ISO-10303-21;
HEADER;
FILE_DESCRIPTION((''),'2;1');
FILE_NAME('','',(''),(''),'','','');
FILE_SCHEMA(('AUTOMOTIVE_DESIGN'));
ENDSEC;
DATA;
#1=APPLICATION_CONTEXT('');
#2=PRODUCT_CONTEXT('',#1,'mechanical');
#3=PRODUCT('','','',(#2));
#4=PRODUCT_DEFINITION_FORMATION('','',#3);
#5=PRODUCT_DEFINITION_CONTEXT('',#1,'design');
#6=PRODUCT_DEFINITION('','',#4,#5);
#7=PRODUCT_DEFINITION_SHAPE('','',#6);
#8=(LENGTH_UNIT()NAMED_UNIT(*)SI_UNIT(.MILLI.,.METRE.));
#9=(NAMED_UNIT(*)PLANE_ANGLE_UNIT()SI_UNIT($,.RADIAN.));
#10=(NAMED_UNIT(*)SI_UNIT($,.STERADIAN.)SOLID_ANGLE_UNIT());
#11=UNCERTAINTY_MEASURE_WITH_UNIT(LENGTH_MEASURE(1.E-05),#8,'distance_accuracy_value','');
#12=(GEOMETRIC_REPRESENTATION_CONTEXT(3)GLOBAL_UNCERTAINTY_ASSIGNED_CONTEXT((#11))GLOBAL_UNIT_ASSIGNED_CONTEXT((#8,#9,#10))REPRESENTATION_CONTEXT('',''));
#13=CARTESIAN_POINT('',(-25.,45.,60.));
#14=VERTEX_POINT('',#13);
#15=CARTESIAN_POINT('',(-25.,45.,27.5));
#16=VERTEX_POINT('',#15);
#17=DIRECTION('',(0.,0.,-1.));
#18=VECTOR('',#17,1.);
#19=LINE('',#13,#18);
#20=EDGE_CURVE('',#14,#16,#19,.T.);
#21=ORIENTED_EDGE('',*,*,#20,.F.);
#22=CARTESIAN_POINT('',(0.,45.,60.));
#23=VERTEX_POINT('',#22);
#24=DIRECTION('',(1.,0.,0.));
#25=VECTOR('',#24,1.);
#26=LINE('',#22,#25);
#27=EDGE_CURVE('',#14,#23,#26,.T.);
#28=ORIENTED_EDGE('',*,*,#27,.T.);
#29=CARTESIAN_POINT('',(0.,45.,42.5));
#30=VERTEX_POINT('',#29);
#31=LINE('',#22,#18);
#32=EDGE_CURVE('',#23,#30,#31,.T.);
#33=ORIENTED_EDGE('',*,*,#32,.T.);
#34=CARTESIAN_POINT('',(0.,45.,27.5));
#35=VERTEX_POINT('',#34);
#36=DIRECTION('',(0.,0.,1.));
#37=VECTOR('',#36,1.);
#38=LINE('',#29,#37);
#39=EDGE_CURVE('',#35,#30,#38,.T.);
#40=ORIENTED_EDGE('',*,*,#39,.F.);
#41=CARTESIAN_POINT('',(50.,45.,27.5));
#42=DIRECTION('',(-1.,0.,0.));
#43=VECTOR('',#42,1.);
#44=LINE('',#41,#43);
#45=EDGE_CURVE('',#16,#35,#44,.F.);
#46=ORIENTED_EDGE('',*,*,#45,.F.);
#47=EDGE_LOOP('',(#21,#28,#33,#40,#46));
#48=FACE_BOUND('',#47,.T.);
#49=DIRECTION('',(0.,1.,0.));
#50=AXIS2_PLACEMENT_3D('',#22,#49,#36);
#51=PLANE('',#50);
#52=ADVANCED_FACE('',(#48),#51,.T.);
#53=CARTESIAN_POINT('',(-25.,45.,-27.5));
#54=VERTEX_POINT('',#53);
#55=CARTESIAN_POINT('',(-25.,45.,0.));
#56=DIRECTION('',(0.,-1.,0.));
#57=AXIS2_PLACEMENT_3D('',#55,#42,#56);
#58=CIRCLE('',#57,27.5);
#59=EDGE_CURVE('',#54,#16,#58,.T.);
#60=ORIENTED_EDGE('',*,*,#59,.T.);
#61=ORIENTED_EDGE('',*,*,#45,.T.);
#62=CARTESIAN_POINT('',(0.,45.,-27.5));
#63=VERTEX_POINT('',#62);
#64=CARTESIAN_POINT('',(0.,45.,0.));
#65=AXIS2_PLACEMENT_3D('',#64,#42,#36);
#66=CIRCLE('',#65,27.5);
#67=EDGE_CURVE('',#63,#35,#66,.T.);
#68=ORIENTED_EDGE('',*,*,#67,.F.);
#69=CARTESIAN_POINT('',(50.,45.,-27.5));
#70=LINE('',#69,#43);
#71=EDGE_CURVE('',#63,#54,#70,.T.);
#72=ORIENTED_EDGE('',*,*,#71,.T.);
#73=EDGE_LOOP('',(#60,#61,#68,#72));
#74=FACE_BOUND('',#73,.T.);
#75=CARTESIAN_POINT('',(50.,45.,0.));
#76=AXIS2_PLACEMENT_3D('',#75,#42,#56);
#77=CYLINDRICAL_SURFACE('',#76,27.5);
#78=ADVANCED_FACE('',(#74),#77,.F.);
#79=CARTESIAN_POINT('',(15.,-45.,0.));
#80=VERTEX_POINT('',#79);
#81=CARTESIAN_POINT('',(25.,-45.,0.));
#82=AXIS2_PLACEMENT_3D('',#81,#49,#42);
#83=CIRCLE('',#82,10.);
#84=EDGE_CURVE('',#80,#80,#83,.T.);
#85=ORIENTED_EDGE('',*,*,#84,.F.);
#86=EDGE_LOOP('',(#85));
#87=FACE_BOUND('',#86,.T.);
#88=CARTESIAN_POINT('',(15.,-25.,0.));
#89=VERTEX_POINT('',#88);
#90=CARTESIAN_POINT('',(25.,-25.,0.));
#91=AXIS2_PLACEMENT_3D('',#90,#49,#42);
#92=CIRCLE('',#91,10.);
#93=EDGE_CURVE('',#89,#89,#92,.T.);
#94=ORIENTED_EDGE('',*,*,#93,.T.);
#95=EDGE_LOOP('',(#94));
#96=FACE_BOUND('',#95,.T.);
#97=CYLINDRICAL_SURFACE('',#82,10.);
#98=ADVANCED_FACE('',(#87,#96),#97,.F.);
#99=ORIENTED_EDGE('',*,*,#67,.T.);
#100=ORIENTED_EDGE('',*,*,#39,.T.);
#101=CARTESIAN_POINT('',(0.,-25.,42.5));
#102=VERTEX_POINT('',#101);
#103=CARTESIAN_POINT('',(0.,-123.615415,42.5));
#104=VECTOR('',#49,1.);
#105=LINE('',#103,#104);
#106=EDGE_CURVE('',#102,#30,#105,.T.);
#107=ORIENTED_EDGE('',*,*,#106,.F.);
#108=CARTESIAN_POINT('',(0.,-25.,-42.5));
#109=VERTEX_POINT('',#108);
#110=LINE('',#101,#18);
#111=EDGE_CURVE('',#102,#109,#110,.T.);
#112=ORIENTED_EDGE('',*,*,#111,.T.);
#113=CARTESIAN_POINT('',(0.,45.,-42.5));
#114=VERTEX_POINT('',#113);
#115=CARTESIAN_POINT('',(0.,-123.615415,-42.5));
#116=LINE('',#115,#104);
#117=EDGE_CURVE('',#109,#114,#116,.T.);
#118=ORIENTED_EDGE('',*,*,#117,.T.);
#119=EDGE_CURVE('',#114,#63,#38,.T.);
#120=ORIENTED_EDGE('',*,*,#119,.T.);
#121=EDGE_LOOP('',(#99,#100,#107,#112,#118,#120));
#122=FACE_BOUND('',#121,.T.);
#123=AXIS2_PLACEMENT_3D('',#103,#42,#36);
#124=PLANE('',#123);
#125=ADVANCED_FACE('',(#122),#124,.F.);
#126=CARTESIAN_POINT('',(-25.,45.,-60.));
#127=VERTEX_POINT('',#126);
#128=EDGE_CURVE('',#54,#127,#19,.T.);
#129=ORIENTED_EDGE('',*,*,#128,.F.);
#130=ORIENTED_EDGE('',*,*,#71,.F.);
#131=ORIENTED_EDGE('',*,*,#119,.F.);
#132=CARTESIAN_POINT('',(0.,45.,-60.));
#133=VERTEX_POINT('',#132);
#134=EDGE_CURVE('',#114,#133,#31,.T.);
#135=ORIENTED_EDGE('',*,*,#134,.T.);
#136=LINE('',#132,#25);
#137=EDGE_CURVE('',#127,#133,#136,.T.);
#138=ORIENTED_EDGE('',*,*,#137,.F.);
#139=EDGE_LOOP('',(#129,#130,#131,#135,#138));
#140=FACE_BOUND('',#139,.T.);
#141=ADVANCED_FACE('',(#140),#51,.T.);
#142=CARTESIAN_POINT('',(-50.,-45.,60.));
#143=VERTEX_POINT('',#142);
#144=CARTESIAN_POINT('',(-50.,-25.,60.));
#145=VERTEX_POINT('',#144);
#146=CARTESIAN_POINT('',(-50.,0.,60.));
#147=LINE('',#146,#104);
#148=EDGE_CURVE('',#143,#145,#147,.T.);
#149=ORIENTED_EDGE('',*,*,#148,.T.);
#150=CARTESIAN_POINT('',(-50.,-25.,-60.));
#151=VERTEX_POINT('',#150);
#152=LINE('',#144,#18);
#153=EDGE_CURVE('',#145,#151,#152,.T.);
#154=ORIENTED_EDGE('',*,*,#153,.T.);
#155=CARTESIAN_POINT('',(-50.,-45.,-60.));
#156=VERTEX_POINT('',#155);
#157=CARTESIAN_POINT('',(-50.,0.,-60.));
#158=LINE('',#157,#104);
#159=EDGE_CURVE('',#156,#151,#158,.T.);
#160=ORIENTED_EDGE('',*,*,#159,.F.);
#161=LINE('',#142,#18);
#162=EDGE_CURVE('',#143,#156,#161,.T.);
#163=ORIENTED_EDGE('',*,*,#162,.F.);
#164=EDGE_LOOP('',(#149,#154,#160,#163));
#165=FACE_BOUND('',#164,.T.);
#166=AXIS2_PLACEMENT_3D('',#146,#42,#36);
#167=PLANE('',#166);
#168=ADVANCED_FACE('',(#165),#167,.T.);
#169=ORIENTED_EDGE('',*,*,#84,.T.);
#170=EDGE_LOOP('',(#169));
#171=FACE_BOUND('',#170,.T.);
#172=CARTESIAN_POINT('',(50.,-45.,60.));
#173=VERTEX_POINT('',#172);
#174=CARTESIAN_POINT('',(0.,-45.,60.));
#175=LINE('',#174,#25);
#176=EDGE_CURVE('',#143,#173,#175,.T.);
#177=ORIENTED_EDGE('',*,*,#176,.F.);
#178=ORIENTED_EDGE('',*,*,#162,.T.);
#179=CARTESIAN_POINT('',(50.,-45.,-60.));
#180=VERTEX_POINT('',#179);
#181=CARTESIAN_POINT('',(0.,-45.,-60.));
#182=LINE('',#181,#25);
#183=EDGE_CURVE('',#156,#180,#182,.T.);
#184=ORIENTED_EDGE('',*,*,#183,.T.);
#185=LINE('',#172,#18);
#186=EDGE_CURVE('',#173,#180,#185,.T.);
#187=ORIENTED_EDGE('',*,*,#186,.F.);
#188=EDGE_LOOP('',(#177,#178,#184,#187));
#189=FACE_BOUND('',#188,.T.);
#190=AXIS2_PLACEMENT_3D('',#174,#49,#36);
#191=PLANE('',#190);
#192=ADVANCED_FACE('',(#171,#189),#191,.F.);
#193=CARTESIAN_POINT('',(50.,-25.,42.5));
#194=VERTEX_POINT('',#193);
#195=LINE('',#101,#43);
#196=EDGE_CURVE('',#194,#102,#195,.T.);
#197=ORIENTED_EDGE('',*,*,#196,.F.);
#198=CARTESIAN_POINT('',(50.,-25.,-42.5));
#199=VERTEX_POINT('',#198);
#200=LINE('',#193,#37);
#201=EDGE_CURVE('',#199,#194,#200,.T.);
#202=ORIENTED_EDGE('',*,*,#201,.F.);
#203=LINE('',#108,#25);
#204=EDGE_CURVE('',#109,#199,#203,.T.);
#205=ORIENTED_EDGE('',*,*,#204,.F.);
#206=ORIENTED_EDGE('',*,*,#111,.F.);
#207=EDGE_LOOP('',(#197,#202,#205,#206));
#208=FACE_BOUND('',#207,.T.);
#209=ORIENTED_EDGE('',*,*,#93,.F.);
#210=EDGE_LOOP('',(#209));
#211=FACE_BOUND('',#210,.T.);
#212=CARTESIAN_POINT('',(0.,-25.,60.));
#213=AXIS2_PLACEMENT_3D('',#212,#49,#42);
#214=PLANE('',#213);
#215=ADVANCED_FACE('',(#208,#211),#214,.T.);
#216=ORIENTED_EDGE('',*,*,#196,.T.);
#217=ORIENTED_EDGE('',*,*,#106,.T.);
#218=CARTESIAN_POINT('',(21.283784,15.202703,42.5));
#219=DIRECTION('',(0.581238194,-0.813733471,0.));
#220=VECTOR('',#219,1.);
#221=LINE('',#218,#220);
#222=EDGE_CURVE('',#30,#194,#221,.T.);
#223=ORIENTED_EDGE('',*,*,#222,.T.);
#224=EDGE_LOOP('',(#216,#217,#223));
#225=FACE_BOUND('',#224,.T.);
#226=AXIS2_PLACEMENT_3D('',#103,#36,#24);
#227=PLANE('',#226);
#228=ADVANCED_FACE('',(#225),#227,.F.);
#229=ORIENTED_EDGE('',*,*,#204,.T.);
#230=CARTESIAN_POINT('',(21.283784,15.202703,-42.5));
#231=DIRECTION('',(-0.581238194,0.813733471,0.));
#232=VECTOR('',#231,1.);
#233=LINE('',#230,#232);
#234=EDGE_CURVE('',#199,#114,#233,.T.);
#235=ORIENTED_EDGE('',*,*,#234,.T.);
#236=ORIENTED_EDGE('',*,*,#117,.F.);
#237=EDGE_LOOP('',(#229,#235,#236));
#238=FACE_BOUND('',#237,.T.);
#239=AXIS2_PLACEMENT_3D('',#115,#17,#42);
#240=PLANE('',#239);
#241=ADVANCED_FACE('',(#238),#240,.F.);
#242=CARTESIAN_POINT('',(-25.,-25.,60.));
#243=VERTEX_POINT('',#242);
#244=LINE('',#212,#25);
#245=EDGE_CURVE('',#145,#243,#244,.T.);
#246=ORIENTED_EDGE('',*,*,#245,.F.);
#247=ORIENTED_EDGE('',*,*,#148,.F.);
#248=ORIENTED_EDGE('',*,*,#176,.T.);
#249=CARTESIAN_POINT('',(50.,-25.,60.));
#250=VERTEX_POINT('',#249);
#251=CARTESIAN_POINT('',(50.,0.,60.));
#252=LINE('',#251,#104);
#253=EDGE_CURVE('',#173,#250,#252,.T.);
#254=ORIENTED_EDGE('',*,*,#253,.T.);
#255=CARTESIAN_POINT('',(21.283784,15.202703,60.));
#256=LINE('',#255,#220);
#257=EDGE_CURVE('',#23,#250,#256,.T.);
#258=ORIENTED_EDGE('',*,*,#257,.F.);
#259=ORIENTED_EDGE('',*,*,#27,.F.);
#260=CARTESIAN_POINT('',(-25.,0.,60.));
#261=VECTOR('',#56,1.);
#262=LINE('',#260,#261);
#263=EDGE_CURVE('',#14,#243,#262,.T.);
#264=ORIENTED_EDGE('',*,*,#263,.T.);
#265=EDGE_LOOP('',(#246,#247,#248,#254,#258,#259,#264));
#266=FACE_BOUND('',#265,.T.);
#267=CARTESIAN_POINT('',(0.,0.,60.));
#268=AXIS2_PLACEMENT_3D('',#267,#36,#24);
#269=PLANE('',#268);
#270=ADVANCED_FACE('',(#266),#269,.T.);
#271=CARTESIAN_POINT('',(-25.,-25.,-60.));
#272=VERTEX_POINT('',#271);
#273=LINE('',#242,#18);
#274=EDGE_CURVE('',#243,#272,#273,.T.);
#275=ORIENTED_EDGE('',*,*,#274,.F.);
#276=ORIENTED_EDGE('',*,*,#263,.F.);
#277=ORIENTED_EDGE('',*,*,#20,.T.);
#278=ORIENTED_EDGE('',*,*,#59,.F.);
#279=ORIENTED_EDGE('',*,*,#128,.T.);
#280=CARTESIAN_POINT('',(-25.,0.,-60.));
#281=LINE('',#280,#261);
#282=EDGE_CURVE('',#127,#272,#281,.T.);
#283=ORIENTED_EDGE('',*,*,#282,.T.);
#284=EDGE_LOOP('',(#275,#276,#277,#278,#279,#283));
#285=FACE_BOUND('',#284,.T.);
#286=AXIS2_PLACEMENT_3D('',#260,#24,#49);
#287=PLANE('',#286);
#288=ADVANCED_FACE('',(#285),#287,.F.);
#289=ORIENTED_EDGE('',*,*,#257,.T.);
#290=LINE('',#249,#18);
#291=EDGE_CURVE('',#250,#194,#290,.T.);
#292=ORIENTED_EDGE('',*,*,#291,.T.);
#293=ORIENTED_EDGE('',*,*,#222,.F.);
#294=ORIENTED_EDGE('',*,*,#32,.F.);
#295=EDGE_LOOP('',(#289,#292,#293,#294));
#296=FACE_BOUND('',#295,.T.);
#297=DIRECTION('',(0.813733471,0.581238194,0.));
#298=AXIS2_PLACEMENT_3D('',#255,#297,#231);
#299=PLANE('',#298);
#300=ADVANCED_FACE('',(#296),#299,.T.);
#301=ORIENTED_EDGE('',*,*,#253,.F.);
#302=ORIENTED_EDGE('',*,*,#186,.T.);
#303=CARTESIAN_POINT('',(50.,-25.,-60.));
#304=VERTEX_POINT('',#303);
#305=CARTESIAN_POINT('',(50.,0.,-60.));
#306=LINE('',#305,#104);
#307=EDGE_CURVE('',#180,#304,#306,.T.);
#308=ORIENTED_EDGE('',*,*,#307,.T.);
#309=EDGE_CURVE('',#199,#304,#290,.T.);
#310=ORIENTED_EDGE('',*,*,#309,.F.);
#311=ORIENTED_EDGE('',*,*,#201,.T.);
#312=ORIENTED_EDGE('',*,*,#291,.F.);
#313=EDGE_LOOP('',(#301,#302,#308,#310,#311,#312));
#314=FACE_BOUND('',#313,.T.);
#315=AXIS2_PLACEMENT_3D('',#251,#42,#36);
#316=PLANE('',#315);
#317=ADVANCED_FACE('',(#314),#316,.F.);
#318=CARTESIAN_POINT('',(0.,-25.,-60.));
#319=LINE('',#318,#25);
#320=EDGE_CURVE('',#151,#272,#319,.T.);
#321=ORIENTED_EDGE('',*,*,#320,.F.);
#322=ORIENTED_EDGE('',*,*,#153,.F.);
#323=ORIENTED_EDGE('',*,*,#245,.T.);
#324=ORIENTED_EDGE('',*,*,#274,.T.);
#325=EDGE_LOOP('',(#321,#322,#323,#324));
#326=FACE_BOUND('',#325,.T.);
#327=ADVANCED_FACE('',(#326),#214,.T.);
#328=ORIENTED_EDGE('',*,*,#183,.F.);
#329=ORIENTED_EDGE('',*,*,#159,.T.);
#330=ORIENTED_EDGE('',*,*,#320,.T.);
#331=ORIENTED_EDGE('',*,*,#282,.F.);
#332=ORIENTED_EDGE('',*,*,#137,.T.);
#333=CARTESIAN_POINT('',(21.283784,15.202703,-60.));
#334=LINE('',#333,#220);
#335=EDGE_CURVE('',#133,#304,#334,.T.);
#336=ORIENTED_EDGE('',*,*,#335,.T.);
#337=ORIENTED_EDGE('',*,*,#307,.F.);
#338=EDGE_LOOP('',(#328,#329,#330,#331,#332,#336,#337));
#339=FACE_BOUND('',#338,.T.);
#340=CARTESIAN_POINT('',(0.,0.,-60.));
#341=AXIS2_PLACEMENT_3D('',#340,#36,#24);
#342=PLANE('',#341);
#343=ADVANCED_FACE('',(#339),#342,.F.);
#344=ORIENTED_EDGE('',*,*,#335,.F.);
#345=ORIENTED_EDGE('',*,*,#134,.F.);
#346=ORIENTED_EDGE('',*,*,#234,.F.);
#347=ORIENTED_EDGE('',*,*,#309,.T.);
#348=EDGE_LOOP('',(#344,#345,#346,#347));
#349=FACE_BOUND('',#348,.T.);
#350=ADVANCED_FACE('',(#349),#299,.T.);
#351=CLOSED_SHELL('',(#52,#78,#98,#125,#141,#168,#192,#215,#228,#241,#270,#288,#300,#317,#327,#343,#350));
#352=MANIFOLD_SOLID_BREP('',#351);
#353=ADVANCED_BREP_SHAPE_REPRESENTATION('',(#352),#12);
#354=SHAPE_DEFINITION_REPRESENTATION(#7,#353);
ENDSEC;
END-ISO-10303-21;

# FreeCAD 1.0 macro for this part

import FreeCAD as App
import Part
import Sketcher

V = App.Vector
Q = App.Units.Quantity


def add_polygon(sketch, points):
    """Adds a closed chain of lines whose ends are joined by coincident constraints."""
    first, n = sketch.GeometryCount, len(points)
    for a, b in zip(points, points[1:] + points[:1]):
        sketch.addGeometry(Part.LineSegment(App.Vector(*a, 0), App.Vector(*b, 0)), False)
    for i in range(n):
        sketch.addConstraint(Sketcher.Constraint("Coincident", first + i, 2, first + (i + 1) % n, 1))

doc = App.newDocument("Part")
body = doc.addObject("PartDesign::Body", "Body")

sketch1 = body.newObject("Sketcher::SketchObject", "Sketch")
sketch1.AttachmentSupport = (doc.getObject("XY_Plane"), [""])
sketch1.MapMode = "FlatFace"
add_polygon(sketch1, [(50, -25), (0, 45), (-25, 45), (-25, -25), (-50, -25), (-50, -45), (50, -45)])
sketch1.addConstraint([
    Sketcher.Constraint("Horizontal", 1),
    Sketcher.Constraint("Vertical", 2),
    Sketcher.Constraint("Horizontal", 3),
    Sketcher.Constraint("Vertical", 4),
    Sketcher.Constraint("Horizontal", 5),
    Sketcher.Constraint("Vertical", 6),
    Sketcher.Constraint("Symmetric", 3, 2, 6, 2, -2),
    Sketcher.Constraint("PointOnObject", 0, 2, -2),
    Sketcher.Constraint("Equal", 1, 3),
    Sketcher.Constraint("DistanceX", 1, 2, 1, 1, Q("25 mm")),
    Sketcher.Constraint("DistanceY", 2, 2, 2, 1, Q("70 mm")),
    Sketcher.Constraint("DistanceY", 4, 2, 4, 1, Q("20 mm")),
    Sketcher.Constraint("DistanceY", -1, 1, 0, 2, Q("45 mm")),
])
pad1 = body.newObject("PartDesign::Pad", "Pad")
pad1.Profile = sketch1
pad1.Length = 120
pad1.Midplane = True

sketch2 = body.newObject("Sketcher::SketchObject", "Sketch001")
sketch2.AttachmentSupport = (doc.getObject("XZ_Plane"), [""])
sketch2.MapMode = "FlatFace"
sketch2.AttachmentOffset = App.Placement(V(0, 0, -45), App.Rotation())
add_polygon(sketch2, [(0, -42), (0, 42), (50, 42), (50, -42)])
sketch2.addConstraint([
    Sketcher.Constraint("Vertical", 0),
    Sketcher.Constraint("Horizontal", 1),
    Sketcher.Constraint("Vertical", 2),
    Sketcher.Constraint("Horizontal", 3),
    Sketcher.Constraint("Symmetric", 0, 2, 3, 2, -1, 1),
    Sketcher.Constraint("DistanceX", 1, 1, 1, 2, Q("50 mm")),
    Sketcher.Constraint("DistanceY", 0, 1, 0, 2, Q("85 mm")),
])
pocket1 = body.newObject("PartDesign::Pocket", "Pocket")
pocket1.Profile = sketch2
pocket1.Length = 70
pocket1.Reversed = True

sketch3 = body.newObject("Sketcher::SketchObject", "Sketch002")
sketch3.AttachmentSupport = (doc.getObject("XZ_Plane"), [""])
sketch3.MapMode = "FlatFace"
sketch3.AttachmentOffset = App.Placement(V(0, 0, 25), App.Rotation())
sketch3.addGeometry(Part.Circle(V(25, 0, 0), V(0, 0, 1), 10), False)
sketch3.addConstraint([
    Sketcher.Constraint("PointOnObject", 0, 3, -1),
    Sketcher.Constraint("Diameter", 0, Q("20 mm")),
    Sketcher.Constraint("DistanceX", -1, 1, 0, 3, Q("25 mm")),
])
pocket2 = body.newObject("PartDesign::Pocket", "Pocket001")
pocket2.Profile = sketch3
pocket2.Type = "ThroughAll"
pocket2.Reversed = True

sketch4 = body.newObject("Sketcher::SketchObject", "Sketch003")
sketch4.AttachmentSupport = (doc.getObject("YZ_Plane"), [""])
sketch4.MapMode = "FlatFace"
sketch4.AttachmentOffset = App.Placement(V(0, 0, -25), App.Rotation())
sketch4.addGeometry(Part.Circle(V(45, 0, 0), V(0, 0, 1), 28), False)
sketch4.addConstraint([
    Sketcher.Constraint("PointOnObject", 0, 3, -1),
    Sketcher.Constraint("Diameter", 0, Q("55 mm")),
    Sketcher.Constraint("DistanceX", -1, 1, 0, 3, Q("45 mm")),
])
pocket3 = body.newObject("PartDesign::Pocket", "Pocket002")
pocket3.Profile = sketch4
pocket3.Type = "ThroughAll"
pocket3.Reversed = True

doc.recompute()
